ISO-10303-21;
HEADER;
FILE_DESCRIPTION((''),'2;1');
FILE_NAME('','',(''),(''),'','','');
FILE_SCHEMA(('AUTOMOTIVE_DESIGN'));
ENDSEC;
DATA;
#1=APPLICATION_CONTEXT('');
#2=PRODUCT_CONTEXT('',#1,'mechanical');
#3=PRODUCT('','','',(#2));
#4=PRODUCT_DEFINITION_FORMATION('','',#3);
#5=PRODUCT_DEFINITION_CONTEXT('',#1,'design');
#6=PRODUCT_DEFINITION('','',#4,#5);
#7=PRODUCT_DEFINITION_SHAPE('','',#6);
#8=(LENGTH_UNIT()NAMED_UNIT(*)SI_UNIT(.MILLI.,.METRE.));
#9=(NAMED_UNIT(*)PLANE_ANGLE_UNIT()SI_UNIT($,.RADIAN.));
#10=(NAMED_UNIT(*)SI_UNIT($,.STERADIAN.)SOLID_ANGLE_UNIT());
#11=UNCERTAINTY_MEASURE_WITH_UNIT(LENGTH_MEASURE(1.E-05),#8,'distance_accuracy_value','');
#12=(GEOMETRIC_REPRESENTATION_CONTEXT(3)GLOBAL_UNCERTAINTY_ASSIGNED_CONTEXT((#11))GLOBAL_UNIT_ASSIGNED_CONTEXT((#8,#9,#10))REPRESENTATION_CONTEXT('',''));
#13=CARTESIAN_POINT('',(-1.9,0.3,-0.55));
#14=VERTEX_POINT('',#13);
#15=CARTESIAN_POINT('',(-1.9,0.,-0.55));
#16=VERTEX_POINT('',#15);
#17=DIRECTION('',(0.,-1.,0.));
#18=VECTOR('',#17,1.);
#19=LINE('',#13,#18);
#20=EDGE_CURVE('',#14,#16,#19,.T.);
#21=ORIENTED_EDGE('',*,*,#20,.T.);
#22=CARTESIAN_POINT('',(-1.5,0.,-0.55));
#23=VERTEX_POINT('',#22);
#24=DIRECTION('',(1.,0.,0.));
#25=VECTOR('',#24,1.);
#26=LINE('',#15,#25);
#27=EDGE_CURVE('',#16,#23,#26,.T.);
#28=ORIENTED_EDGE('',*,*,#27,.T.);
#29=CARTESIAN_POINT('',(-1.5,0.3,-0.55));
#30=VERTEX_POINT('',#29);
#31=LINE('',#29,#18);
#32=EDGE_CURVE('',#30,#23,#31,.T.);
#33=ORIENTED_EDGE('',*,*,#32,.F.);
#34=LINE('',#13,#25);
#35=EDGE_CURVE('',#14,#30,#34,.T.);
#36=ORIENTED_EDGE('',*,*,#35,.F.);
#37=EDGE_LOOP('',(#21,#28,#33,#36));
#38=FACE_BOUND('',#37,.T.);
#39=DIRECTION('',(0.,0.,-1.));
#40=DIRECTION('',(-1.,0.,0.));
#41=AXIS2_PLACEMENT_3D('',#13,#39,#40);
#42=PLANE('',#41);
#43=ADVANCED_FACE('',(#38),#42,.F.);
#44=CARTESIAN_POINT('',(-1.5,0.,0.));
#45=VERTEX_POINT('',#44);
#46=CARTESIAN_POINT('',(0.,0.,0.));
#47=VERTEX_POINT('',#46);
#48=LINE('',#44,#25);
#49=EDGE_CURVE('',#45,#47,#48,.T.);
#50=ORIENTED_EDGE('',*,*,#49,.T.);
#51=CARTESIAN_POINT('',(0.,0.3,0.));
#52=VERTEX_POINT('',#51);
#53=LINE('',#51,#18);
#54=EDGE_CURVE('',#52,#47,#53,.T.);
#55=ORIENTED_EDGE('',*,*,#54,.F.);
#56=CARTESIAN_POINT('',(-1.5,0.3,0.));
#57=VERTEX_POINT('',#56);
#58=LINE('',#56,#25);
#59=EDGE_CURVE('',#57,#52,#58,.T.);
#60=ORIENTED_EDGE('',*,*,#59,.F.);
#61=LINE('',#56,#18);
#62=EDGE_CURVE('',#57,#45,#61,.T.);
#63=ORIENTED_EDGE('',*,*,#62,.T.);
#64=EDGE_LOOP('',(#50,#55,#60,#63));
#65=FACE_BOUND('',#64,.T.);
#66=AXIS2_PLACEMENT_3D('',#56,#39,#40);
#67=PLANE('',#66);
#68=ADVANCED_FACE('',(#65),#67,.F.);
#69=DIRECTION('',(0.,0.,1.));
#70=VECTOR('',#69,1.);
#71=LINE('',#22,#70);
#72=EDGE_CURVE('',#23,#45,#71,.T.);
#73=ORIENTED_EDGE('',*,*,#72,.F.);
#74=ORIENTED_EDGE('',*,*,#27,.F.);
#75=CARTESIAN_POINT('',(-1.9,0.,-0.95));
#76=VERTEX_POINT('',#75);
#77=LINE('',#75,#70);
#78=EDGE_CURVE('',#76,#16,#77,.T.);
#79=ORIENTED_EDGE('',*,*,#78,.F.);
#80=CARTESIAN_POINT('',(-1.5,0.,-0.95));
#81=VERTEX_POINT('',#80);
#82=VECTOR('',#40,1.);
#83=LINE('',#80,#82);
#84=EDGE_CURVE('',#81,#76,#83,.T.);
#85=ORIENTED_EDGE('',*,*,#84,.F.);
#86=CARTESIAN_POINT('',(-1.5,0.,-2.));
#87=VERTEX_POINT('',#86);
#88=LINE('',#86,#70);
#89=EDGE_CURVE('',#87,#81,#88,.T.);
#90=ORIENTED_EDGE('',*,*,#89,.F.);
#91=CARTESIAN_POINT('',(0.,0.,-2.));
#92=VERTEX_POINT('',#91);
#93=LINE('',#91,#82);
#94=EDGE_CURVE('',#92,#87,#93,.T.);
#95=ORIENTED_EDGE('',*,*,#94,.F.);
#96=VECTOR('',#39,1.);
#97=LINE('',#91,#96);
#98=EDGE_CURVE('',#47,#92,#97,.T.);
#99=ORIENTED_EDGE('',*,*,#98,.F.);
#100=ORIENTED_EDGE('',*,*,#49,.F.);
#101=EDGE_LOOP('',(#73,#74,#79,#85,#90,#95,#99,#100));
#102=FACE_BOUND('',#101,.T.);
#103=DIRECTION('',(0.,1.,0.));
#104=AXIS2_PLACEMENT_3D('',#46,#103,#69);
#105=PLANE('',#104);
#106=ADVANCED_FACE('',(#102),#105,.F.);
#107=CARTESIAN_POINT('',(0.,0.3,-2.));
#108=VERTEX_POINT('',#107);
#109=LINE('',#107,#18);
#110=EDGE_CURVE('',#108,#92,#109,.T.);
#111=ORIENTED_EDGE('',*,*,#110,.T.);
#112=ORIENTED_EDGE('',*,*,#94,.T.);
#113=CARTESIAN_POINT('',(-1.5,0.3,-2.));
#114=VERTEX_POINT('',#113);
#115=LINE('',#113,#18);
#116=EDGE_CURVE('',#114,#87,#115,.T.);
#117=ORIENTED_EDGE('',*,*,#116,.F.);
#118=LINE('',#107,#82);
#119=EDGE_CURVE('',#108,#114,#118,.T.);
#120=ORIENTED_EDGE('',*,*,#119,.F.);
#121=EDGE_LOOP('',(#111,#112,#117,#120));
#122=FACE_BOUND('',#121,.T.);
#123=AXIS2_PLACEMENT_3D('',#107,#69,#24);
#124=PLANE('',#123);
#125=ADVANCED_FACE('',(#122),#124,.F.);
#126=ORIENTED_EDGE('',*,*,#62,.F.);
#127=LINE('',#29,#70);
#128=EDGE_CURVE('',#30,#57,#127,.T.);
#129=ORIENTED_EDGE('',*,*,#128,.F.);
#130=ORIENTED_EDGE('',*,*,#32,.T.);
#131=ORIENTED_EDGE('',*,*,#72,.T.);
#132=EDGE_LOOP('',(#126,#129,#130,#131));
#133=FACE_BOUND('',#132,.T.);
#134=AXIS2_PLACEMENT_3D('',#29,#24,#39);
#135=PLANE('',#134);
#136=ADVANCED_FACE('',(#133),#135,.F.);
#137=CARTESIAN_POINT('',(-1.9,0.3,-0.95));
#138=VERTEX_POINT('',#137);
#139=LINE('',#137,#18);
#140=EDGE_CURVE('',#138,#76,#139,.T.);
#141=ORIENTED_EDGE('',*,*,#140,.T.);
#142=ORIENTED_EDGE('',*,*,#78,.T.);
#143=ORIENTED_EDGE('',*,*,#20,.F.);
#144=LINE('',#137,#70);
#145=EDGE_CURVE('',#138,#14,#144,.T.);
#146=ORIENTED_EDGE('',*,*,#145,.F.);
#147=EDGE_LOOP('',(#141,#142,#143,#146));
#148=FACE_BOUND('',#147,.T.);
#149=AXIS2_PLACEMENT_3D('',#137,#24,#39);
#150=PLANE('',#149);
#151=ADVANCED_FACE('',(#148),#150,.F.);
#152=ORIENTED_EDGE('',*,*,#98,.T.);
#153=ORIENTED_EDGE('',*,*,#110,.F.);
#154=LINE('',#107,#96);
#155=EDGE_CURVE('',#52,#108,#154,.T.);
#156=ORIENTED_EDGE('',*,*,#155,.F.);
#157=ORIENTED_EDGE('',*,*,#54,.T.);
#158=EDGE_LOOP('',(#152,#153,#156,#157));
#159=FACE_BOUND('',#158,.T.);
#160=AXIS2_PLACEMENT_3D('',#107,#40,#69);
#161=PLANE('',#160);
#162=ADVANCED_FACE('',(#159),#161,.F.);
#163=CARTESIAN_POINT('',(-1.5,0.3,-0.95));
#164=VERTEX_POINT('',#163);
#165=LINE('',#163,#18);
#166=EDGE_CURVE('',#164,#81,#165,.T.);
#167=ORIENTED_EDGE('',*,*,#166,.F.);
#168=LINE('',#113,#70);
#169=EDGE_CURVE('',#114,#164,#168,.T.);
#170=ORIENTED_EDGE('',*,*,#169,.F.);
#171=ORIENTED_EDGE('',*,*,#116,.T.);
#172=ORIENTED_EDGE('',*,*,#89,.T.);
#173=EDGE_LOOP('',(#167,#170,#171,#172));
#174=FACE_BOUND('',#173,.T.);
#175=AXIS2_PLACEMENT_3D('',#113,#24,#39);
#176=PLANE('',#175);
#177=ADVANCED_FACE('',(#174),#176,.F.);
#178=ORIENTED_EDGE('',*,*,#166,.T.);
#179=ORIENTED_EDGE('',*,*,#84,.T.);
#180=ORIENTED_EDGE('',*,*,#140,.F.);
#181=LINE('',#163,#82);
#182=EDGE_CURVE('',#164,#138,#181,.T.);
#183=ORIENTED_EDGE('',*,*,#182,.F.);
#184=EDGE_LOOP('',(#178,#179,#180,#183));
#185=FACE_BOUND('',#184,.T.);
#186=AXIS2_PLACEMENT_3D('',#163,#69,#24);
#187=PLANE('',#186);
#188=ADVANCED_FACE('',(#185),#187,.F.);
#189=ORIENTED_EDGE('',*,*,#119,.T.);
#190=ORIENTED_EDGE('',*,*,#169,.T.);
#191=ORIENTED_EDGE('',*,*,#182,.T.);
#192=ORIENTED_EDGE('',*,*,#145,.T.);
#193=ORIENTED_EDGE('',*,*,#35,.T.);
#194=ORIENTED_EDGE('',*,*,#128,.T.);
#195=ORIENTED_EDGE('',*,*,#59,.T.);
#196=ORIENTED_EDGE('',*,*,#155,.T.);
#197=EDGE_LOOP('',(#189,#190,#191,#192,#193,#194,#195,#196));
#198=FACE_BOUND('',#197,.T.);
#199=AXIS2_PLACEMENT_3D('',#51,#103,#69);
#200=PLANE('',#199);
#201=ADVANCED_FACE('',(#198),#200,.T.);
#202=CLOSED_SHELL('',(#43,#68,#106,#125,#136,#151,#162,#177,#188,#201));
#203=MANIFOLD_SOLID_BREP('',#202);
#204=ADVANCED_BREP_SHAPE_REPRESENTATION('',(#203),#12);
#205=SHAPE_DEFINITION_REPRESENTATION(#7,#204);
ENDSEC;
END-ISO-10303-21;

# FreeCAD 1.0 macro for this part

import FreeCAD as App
import Part
import Sketcher

V = App.Vector
Q = App.Units.Quantity


def add_polygon(sketch, points):
    """Adds a closed chain of lines whose ends are joined by coincident constraints."""
    first, n = sketch.GeometryCount, len(points)
    for a, b in zip(points, points[1:] + points[:1]):
        sketch.addGeometry(Part.LineSegment(App.Vector(*a, 0), App.Vector(*b, 0)), False)
    for i in range(n):
        sketch.addConstraint(Sketcher.Constraint("Coincident", first + i, 2, first + (i + 1) % n, 1))

doc = App.newDocument("Part")
params = doc.addObject("Spreadsheet::Sheet", "Params")
for row, (alias, value) in enumerate([
    ("sketch1_height", "2 mm"),
    ("sketch1_width", "1.5 mm"),
    ("sketch1_width2", "0.4 mm"),
    ("sketch1_height2", "1.05 mm"),
    ("pad1_length", "0.3 mm"),
], start=1):
    params.set(f"A{row}", alias)
    params.set(f"B{row}", "=" + value)
    params.setAlias(f"B{row}", alias)

body = doc.addObject("PartDesign::Body", "Body")

sketch1 = body.newObject("Sketcher::SketchObject", "Sketch")
sketch1.AttachmentSupport = (doc.getObject("XZ_Plane"), [""])
sketch1.MapMode = "FlatFace"
add_polygon(sketch1, [(0, -2), (-1.5, -2), (-1.5, -0.95), (-1.9, -0.95), (-1.9, -0.55), (-1.5, -0.55), (-1.5, 0), (0, 0)])
sketch1.addConstraint([
    Sketcher.Constraint("Horizontal", 0),
    Sketcher.Constraint("Vertical", 1),
    Sketcher.Constraint("Horizontal", 2),
    Sketcher.Constraint("Vertical", 3),
    Sketcher.Constraint("Horizontal", 4),
    Sketcher.Constraint("Vertical", 5),
    Sketcher.Constraint("Horizontal", 6),
    Sketcher.Constraint("Vertical", 7),
    Sketcher.Constraint("Coincident", 6, 2, -1, 1),
    Sketcher.Constraint("Vertical", 1, 2, 4, 2),
    Sketcher.Constraint("Equal", 4, 3),
    Sketcher.Constraint("DistanceY", 7, 2, 7, 1, Q("2 mm")),
    Sketcher.Constraint("DistanceX", 0, 2, 0, 1, Q("1.5 mm")),
    Sketcher.Constraint("DistanceX", 2, 2, 2, 1, Q("0.4 mm")),
    Sketcher.Constraint("DistanceY", 1, 1, 1, 2, Q("1.05 mm")),
])
sketch1.setExpression("Constraints[19]", "Params.sketch1_height")
sketch1.setExpression("Constraints[20]", "Params.sketch1_width")
sketch1.setExpression("Constraints[21]", "Params.sketch1_width2")
sketch1.setExpression("Constraints[22]", "Params.sketch1_height2")
pad1 = body.newObject("PartDesign::Pad", "Pad")
pad1.Profile = sketch1
pad1.setExpression("Length", "Params.pad1_length")
pad1.Reversed = True

doc.recompute()
